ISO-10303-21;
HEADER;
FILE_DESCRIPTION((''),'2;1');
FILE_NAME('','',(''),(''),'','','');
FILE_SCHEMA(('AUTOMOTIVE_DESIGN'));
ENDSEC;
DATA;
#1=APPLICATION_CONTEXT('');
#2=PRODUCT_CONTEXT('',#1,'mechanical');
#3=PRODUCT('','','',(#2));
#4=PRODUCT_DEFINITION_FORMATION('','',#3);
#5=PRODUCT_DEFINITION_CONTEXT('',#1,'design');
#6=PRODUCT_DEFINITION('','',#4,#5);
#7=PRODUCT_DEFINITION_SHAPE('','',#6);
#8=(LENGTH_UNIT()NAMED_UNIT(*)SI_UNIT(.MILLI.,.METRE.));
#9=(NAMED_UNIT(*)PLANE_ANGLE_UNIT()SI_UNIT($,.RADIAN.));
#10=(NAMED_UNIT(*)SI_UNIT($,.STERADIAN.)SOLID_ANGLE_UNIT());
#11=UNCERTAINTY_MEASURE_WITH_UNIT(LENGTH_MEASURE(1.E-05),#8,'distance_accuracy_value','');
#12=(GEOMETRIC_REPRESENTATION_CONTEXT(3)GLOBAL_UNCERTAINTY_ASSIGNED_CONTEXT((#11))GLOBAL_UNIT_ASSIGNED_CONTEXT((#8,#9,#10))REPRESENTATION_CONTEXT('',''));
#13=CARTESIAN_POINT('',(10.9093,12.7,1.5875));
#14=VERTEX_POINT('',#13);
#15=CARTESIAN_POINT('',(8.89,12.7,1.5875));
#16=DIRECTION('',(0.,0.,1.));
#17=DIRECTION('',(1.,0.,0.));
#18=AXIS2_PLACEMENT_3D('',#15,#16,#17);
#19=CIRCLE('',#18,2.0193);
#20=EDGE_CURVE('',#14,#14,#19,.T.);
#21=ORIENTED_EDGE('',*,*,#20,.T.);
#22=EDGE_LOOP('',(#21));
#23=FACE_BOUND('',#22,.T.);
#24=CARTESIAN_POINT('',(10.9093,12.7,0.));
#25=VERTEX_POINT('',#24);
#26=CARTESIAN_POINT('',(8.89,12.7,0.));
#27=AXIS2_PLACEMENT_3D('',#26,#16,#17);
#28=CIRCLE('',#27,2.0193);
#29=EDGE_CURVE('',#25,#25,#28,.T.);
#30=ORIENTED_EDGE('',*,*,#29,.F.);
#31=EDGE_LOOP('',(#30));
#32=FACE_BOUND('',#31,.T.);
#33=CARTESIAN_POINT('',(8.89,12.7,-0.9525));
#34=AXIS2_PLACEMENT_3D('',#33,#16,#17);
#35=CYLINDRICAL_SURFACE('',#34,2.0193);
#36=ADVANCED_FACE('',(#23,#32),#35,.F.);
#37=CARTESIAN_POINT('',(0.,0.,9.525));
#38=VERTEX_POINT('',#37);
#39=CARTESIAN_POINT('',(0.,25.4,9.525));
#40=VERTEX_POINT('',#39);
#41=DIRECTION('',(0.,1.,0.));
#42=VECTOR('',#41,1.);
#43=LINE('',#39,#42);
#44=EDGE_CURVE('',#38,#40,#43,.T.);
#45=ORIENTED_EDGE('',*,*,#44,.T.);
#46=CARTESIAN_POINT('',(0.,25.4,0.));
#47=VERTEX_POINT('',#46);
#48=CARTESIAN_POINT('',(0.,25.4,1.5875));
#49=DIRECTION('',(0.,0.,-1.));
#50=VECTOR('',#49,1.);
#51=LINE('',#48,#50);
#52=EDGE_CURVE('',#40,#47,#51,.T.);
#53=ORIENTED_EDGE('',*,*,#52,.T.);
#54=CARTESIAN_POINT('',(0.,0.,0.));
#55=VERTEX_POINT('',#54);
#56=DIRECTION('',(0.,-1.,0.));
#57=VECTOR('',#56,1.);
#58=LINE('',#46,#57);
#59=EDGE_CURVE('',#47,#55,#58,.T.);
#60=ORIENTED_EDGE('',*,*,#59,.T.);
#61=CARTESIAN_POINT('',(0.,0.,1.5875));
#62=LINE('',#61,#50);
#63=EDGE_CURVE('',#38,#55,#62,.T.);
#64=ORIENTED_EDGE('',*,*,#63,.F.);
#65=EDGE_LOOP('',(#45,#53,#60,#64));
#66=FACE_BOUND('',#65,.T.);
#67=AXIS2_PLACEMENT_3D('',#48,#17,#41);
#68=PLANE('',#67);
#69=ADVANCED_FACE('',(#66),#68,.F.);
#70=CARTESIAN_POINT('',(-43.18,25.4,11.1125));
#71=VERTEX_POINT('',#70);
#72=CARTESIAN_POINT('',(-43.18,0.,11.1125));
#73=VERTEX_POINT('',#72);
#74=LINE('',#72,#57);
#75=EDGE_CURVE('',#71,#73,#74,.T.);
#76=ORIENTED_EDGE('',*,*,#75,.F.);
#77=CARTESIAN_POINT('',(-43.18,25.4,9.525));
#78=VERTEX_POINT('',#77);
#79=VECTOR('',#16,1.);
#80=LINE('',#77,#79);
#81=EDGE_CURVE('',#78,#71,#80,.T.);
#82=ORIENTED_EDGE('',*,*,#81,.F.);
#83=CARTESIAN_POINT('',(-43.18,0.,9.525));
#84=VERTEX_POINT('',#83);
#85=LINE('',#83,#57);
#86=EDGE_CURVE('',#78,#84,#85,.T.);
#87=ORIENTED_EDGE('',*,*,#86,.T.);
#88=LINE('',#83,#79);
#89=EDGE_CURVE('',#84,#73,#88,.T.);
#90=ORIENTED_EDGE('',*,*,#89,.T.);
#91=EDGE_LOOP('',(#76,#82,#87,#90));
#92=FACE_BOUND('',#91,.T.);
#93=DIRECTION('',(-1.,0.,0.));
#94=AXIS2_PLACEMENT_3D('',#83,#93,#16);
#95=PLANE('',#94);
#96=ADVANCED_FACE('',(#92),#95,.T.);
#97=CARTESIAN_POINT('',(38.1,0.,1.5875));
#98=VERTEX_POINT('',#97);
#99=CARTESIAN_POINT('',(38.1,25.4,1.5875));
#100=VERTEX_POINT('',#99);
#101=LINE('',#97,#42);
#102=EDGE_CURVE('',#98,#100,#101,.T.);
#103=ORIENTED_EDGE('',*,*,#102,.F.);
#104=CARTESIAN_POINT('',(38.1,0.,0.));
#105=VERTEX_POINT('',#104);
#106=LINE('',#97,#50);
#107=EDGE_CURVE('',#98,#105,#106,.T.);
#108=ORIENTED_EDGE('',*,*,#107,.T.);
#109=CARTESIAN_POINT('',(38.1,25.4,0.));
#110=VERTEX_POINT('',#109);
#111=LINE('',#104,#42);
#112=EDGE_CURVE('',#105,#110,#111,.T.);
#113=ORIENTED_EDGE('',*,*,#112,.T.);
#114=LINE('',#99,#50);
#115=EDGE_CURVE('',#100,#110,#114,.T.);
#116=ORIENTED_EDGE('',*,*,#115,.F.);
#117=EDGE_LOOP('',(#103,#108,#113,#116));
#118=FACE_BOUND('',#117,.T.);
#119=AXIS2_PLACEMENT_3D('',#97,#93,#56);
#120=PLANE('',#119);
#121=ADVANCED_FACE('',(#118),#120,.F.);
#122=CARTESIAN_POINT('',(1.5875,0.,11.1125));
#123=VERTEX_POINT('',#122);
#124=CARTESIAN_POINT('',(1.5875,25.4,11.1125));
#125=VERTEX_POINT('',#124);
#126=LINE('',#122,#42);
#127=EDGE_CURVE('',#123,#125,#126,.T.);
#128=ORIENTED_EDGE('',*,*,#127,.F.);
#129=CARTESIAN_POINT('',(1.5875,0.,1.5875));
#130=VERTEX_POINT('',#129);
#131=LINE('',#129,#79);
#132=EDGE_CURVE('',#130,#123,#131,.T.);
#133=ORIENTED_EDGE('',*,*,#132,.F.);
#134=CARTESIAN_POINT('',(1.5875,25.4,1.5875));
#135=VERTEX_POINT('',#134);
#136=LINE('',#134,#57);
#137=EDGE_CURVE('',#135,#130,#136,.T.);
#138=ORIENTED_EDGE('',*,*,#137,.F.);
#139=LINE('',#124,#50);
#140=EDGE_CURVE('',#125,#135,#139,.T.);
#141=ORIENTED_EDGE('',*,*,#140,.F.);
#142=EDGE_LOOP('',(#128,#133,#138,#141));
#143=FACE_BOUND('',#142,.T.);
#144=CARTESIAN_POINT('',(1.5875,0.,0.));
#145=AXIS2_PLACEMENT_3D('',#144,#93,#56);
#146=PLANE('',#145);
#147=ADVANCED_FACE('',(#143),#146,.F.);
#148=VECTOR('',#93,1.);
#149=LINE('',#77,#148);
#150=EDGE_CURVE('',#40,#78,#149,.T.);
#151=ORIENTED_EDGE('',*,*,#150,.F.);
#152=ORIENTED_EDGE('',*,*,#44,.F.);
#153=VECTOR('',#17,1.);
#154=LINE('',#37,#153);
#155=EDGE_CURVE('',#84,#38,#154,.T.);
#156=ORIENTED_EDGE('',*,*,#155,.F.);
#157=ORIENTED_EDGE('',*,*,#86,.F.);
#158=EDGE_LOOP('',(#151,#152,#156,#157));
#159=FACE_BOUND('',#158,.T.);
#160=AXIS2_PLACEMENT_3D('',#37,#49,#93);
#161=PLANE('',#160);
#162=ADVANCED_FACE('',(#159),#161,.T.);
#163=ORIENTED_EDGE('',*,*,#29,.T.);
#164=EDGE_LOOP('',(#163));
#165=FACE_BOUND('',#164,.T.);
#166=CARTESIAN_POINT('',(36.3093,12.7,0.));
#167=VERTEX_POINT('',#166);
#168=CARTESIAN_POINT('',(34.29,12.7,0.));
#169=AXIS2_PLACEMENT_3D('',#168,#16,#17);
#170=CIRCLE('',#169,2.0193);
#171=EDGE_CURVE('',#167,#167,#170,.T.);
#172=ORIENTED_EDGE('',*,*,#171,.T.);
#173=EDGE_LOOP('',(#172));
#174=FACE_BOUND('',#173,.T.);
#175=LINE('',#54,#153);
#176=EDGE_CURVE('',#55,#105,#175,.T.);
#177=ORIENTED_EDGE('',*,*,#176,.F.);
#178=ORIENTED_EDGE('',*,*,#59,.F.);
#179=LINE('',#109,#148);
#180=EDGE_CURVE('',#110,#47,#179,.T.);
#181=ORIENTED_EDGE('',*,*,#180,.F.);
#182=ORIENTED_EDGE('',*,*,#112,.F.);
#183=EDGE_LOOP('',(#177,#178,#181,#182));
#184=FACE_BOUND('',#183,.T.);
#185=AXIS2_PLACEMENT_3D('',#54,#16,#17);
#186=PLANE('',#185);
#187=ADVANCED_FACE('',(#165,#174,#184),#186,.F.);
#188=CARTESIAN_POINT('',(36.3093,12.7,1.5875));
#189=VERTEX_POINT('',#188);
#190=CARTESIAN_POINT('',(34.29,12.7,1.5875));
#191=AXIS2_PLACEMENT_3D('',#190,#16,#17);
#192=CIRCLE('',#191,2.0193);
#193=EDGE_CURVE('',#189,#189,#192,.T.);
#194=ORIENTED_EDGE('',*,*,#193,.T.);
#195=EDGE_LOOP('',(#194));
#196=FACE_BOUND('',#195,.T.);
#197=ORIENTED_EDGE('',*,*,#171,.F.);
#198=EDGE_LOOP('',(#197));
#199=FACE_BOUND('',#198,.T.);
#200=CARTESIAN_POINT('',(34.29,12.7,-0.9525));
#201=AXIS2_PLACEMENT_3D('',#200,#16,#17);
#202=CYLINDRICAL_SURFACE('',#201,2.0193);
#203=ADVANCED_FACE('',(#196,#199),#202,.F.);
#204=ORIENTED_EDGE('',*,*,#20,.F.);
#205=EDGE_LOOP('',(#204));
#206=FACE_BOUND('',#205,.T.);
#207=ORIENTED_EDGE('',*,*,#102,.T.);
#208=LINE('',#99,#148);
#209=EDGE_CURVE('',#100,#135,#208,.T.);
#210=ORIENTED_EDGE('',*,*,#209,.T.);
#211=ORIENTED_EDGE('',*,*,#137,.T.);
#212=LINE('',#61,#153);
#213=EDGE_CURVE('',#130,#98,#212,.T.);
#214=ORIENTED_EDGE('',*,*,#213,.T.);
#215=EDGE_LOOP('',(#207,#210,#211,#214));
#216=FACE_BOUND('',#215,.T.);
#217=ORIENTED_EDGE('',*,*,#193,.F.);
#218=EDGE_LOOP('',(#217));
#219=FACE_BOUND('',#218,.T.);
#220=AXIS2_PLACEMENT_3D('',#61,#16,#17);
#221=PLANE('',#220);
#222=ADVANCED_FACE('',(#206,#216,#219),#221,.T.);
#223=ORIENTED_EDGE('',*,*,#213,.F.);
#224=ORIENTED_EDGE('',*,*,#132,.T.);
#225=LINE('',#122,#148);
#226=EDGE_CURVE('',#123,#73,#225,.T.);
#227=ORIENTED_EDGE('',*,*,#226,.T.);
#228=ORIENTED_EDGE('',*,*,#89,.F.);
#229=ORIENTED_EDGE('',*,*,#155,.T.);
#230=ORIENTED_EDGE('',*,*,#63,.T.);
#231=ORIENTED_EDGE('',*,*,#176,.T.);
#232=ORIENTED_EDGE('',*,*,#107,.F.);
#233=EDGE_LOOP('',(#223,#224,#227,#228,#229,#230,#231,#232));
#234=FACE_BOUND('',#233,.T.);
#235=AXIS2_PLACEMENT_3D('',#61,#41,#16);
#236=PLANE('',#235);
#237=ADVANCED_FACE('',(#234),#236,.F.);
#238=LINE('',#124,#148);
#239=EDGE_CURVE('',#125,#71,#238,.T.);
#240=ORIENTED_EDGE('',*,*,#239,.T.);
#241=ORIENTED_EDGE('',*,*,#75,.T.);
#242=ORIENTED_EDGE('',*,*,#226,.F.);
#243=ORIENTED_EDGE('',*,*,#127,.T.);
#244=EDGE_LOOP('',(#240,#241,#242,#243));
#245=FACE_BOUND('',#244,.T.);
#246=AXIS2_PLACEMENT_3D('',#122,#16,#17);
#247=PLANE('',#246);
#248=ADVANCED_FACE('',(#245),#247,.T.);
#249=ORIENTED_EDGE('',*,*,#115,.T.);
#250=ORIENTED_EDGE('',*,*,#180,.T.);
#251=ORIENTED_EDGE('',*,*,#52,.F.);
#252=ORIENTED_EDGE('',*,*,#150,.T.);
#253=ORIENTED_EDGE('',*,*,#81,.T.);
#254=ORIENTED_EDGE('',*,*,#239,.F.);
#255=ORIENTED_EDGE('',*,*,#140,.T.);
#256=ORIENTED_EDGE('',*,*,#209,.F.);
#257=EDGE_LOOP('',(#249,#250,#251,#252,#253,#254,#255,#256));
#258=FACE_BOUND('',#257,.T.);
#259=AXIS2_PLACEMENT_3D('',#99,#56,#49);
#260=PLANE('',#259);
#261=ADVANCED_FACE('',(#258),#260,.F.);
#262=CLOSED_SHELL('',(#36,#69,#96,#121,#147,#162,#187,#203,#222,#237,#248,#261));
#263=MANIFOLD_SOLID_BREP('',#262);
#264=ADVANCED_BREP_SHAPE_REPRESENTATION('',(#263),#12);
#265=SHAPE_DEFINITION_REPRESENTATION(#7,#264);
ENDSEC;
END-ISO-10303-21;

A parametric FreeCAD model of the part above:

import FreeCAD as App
import Part
import Sketcher
Q = App.Units.Quantity


def add_polygon(sketch, points):
    """Adds a closed chain of lines whose ends are joined by coincident constraints."""
    first, n = sketch.GeometryCount, len(points)
    for a, b in zip(points, points[1:] + points[:1]):
        sketch.addGeometry(Part.LineSegment(App.Vector(*a, 0), App.Vector(*b, 0)), False)
    for i in range(n):
        sketch.addConstraint(Sketcher.Constraint("Coincident", first + i, 2, first + (i + 1) % n, 1))

doc = App.newDocument("Part")
params = doc.addObject("Spreadsheet::Sheet", "Params")
for row, (alias, value) in enumerate([
    ("sketch1_height", "1 in"),
    ("sketch1_width", "1.5 in"),
    ("pad1_length", "0.0625 in"),
    ("sketch2_width", "1 in"),
    ("sketch2_height", "0.375 in"),
    ("pad2_length", "0.0625 in"),
    ("sketch3_height", "1 in"),
    ("sketch3_width", "1.7 in"),
    ("pad3_length", "0.0625 in"),
    ("sketch4_diameter", "0.159 in"),
    ("pocket1_length", "0.1 in"),
    ("linearpattern_pitch", "1 in"),
], start=1):
    params.set(f"A{row}", alias)
    params.set(f"B{row}", "=" + value)
    params.setAlias(f"B{row}", alias)

body = doc.addObject("PartDesign::Body", "Body")

sketch1 = body.newObject("Sketcher::SketchObject", "Sketch")
sketch1.AttachmentSupport = (doc.getObject("XY_Plane"), [""])
sketch1.MapMode = "FlatFace"
add_polygon(sketch1, [(0, 25.4), (0, 0), (38.1, 0), (38.1, 25.4)])
sketch1.addConstraint([
    Sketcher.Constraint("Vertical", 0),
    Sketcher.Constraint("Horizontal", 1),
    Sketcher.Constraint("Vertical", 2),
    Sketcher.Constraint("Horizontal", 3),
    Sketcher.Constraint("Coincident", 0, 2, -1, 1),
    Sketcher.Constraint("DistanceY", 0, 2, 0, 1, Q("1 in")),
    Sketcher.Constraint("DistanceX", 1, 1, 1, 2, Q("1.5 in")),
])
sketch1.setExpression("Constraints[9]", "Params.sketch1_height")
sketch1.setExpression("Constraints[10]", "Params.sketch1_width")
pad1 = body.newObject("PartDesign::Pad", "Pad")
pad1.Profile = sketch1
pad1.setExpression("Length", "Params.pad1_length")

sketch2 = body.newObject("Sketcher::SketchObject", "Sketch001")
sketch2.AttachmentSupport = (doc.getObject("YZ_Plane"), [""])
sketch2.MapMode = "FlatFace"
add_polygon(sketch2, [(25.4, 1.5875), (0, 1.5875), (0, 11.1125), (25.4, 11.1125)])
sketch2.addConstraint([
    Sketcher.Constraint("Horizontal", 0),
    Sketcher.Constraint("Vertical", 1),
    Sketcher.Constraint("Horizontal", 2),
    Sketcher.Constraint("Vertical", 3),
    Sketcher.Constraint("PointOnObject", 0, 2, -2),
    Sketcher.Constraint("DistanceX", 0, 2, 0, 1, Q("1 in")),
    Sketcher.Constraint("DistanceY", 1, 1, 1, 2, Q("0.375 in")),
    Sketcher.Constraint("DistanceY", -1, 1, 0, 2, Q("0.0625 in")),
])
sketch2.setExpression("Constraints[9]", "Params.sketch2_width")
sketch2.setExpression("Constraints[10]", "Params.sketch2_height")
pad2 = body.newObject("PartDesign::Pad", "Pad001")
pad2.Profile = sketch2
pad2.setExpression("Length", "Params.pad2_length")

sketch3 = body.newObject("Sketcher::SketchObject", "Sketch002")
sketch3.AttachmentSupport = (doc.getObject("XY_Plane"), [""])
sketch3.MapMode = "FlatFace"
sketch3.AttachmentOffset = App.Placement(App.Vector(0, 0, 0.4375 * 25.4), App.Rotation())
add_polygon(sketch3, [(-43.18, 25.4), (-43.18, 0), (0, 0), (0, 25.4)])
sketch3.addConstraint([
    Sketcher.Constraint("Vertical", 0),
    Sketcher.Constraint("Horizontal", 1),
    Sketcher.Constraint("Vertical", 2),
    Sketcher.Constraint("Horizontal", 3),
    Sketcher.Constraint("Coincident", 1, 2, -1, 1),
    Sketcher.Constraint("DistanceY", 0, 2, 0, 1, Q("1 in")),
    Sketcher.Constraint("DistanceX", 1, 1, 1, 2, Q("1.7 in")),
])
sketch3.setExpression("Constraints[9]", "Params.sketch3_height")
sketch3.setExpression("Constraints[10]", "Params.sketch3_width")
pad3 = body.newObject("PartDesign::Pad", "Pad002")
pad3.Profile = sketch3
pad3.setExpression("Length", "Params.pad3_length")
pad3.Reversed = True

sketch4 = body.newObject("Sketcher::SketchObject", "Sketch003")
sketch4.AttachmentSupport = (doc.getObject("XY_Plane"), [""])
sketch4.MapMode = "FlatFace"
sketch4.AttachmentOffset = App.Placement(App.Vector(0, 0, 0.0625 * 25.4), App.Rotation())
sketch4.addGeometry(Part.Circle(App.Vector(34.29, 12.7, 0), App.Vector(0, 0, 1), 2.0193), False)
sketch4.addConstraint([
    Sketcher.Constraint("Diameter", 0, Q("0.159 in")),
    Sketcher.Constraint("DistanceY", -1, 1, 0, 3, Q("0.5 in")),
    Sketcher.Constraint("DistanceX", -1, 1, 0, 3, Q("1.35 in")),
])
sketch4.setExpression("Constraints[0]", "Params.sketch4_diameter")
pocket1 = body.newObject("PartDesign::Pocket", "Pocket")
pocket1.Profile = sketch4
pocket1.setExpression("Length", "Params.pocket1_length")
doc.recompute()

linearpattern = body.newObject("PartDesign::LinearPattern", "LinearPattern")
linearpattern.Originals = [pocket1]
linearpattern.Direction = (doc.getObject("X_Axis"), [""])
linearpattern.Mode = "offset"
linearpattern.setExpression("Offset", "Params.linearpattern_pitch")
linearpattern.Occurrences = 2
linearpattern.Reversed = True
body.Tip = linearpattern

doc.recompute()
